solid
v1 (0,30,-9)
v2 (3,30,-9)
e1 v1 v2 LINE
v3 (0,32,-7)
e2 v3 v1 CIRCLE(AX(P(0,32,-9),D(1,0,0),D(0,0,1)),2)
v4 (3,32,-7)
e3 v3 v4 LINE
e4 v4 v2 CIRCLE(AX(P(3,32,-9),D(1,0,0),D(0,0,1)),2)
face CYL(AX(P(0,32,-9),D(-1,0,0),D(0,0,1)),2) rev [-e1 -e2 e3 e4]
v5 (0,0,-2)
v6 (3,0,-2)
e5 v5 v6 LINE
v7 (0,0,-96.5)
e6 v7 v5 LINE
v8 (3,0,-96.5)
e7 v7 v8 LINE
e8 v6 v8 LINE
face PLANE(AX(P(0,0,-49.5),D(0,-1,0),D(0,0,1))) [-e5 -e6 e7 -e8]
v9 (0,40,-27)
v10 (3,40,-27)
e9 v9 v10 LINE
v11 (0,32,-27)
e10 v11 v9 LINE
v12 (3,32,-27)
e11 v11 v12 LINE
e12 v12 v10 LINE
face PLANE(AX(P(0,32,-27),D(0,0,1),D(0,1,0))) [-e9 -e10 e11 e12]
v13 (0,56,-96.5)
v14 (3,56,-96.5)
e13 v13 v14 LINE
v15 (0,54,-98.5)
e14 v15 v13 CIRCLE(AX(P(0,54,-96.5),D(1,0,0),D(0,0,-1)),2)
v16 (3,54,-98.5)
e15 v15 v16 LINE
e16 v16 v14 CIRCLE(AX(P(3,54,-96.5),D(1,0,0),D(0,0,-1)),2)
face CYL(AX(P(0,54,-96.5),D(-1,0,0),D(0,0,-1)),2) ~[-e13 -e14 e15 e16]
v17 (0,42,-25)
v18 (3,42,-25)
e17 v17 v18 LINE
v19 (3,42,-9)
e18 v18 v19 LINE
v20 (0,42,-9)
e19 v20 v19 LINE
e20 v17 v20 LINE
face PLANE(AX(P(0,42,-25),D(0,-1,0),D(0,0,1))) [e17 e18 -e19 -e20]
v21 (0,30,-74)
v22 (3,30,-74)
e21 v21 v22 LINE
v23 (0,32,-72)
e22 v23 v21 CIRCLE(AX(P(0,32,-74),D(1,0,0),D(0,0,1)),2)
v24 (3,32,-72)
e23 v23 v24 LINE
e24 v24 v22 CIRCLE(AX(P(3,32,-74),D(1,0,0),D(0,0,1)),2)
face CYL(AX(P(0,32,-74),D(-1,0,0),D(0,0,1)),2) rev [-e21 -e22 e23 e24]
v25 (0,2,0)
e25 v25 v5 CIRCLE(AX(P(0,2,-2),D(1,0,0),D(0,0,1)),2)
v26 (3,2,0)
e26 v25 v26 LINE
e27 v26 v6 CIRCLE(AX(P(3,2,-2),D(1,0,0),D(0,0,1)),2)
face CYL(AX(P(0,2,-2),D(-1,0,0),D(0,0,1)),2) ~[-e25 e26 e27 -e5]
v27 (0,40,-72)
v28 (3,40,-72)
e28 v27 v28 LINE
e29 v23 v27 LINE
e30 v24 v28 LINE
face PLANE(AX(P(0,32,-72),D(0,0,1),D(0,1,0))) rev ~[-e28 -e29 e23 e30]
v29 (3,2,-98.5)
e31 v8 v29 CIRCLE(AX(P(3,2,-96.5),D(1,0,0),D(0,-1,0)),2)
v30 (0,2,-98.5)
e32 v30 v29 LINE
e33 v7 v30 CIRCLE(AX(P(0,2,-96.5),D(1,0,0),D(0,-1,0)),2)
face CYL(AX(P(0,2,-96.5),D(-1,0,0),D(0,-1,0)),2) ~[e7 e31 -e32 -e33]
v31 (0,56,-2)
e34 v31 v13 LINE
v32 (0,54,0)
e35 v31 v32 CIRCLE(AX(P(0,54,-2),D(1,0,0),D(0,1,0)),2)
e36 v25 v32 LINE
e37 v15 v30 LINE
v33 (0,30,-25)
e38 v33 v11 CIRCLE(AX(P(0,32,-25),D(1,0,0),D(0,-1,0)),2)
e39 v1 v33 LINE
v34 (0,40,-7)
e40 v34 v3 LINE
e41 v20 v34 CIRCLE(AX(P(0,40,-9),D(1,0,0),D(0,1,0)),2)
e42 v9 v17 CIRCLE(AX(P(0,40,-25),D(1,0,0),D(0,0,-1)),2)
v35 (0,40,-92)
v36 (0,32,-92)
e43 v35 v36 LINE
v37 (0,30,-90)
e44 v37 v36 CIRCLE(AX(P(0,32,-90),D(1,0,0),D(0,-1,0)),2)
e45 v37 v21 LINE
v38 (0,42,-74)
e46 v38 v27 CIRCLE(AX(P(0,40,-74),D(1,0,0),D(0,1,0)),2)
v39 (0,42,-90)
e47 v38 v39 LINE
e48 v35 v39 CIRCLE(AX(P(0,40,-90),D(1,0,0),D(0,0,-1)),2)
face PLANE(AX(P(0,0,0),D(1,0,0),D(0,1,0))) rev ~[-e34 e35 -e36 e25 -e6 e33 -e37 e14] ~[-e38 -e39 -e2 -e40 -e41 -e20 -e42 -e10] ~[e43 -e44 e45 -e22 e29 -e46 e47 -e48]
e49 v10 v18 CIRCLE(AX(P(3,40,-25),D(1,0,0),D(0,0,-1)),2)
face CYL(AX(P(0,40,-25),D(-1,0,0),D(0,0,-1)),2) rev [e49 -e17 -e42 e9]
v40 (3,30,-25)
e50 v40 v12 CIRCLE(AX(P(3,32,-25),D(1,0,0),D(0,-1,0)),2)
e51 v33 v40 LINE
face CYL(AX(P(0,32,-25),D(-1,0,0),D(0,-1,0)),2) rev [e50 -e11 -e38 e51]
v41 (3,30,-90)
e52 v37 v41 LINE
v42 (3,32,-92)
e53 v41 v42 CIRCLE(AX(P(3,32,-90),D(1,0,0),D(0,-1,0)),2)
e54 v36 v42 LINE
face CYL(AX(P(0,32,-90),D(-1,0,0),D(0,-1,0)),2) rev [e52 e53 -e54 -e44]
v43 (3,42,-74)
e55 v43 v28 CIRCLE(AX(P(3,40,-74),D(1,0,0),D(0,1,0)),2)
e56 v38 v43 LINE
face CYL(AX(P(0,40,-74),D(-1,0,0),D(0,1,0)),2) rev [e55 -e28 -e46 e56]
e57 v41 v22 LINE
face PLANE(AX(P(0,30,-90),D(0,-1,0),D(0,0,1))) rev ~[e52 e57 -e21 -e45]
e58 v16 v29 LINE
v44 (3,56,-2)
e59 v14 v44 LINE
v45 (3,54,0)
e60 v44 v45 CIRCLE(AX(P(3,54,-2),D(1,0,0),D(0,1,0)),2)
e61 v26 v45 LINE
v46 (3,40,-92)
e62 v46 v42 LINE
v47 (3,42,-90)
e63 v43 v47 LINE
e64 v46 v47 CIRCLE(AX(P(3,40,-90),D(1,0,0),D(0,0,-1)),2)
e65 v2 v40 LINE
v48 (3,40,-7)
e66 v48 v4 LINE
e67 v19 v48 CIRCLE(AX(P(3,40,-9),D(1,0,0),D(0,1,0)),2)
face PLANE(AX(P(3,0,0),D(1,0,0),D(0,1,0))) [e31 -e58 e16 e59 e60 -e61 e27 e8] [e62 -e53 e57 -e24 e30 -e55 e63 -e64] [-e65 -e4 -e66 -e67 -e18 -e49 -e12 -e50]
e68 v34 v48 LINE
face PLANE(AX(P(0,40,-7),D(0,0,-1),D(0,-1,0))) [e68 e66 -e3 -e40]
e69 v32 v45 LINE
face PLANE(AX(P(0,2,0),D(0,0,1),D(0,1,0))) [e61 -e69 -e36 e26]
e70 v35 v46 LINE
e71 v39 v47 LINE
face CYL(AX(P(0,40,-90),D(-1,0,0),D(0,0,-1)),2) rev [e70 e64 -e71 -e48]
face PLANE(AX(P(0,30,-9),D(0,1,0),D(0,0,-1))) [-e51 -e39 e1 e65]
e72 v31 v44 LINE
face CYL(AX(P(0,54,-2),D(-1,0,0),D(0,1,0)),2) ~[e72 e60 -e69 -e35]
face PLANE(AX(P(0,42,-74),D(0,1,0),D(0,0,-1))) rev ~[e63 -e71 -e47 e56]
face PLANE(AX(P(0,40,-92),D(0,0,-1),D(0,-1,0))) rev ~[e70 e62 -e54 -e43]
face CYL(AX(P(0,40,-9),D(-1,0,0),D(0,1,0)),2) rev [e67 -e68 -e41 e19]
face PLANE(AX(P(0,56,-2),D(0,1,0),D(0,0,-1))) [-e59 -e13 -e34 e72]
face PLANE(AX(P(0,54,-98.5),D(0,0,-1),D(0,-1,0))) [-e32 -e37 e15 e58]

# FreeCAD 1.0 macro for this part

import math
import FreeCAD as App
import Part
import Sketcher
Q = App.Units.Quantity

doc = App.newDocument("Part")
body = doc.addObject("PartDesign::Body", "Body")

sketch1 = body.newObject("Sketcher::SketchObject", "Sketch")
sketch1.AttachmentSupport = (doc.getObject("YZ_Plane"), [""])
sketch1.MapMode = "FlatFace"
sketch1.addGeometry([
    Part.LineSegment(App.Vector(54, 0, 0), App.Vector(2, 0, 0)),
    Part.ArcOfCircle(Part.Circle(App.Vector(2, -2, 0), App.Vector(0, 0, 1), 2), math.radians(90), math.radians(180)),
    Part.LineSegment(App.Vector(0, -2, 0), App.Vector(0, -96.5, 0)),
    Part.ArcOfCircle(Part.Circle(App.Vector(2, -96.5, 0), App.Vector(0, 0, 1), 2), math.radians(180), math.radians(270)),
    Part.LineSegment(App.Vector(2, -98.5, 0), App.Vector(54, -98.5, 0)),
    Part.ArcOfCircle(Part.Circle(App.Vector(54, -96.5, 0), App.Vector(0, 0, 1), 2), math.radians(-90), math.radians(0)),
    Part.LineSegment(App.Vector(56, -96.5, 0), App.Vector(56, -2, 0)),
    Part.ArcOfCircle(Part.Circle(App.Vector(54, -2, 0), App.Vector(0, 0, 1), 2), math.radians(0), math.radians(90)),
    Part.LineSegment(App.Vector(32, -7, 0), App.Vector(40, -7, 0)),
    Part.ArcOfCircle(Part.Circle(App.Vector(40, -9, 0), App.Vector(0, 0, 1), 2), math.radians(0), math.radians(90)),
    Part.LineSegment(App.Vector(42, -9, 0), App.Vector(42, -25, 0)),
    Part.ArcOfCircle(Part.Circle(App.Vector(40, -25, 0), App.Vector(0, 0, 1), 2), math.radians(-90), math.radians(0)),
    Part.LineSegment(App.Vector(40, -27, 0), App.Vector(32, -27, 0)),
    Part.ArcOfCircle(Part.Circle(App.Vector(32, -25, 0), App.Vector(0, 0, 1), 2), math.radians(180), math.radians(270)),
    Part.LineSegment(App.Vector(30, -25, 0), App.Vector(30, -9, 0)),
    Part.ArcOfCircle(Part.Circle(App.Vector(32, -9, 0), App.Vector(0, 0, 1), 2), math.radians(90), math.radians(180)),
    Part.LineSegment(App.Vector(40, -92, 0), App.Vector(32, -92, 0)),
    Part.ArcOfCircle(Part.Circle(App.Vector(32, -90, 0), App.Vector(0, 0, 1), 2), math.radians(180), math.radians(270)),
    Part.LineSegment(App.Vector(30, -90, 0), App.Vector(30, -74, 0)),
    Part.ArcOfCircle(Part.Circle(App.Vector(32, -74, 0), App.Vector(0, 0, 1), 2), math.radians(90), math.radians(180)),
    Part.LineSegment(App.Vector(32, -72, 0), App.Vector(40, -72, 0)),
    Part.ArcOfCircle(Part.Circle(App.Vector(40, -74, 0), App.Vector(0, 0, 1), 2), math.radians(0), math.radians(90)),
    Part.LineSegment(App.Vector(42, -74, 0), App.Vector(42, -90, 0)),
    Part.ArcOfCircle(Part.Circle(App.Vector(40, -90, 0), App.Vector(0, 0, 1), 2), math.radians(-90), math.radians(0)),
], False)
sketch1.addConstraint([
    Sketcher.Constraint("Tangent", 0, 2, 1, 1),
    Sketcher.Constraint("Tangent", 1, 2, 2, 1),
    Sketcher.Constraint("Tangent", 2, 2, 3, 1),
    Sketcher.Constraint("Tangent", 3, 2, 4, 1),
    Sketcher.Constraint("Tangent", 4, 2, 5, 1),
    Sketcher.Constraint("Tangent", 5, 2, 6, 1),
    Sketcher.Constraint("Tangent", 6, 2, 7, 1),
    Sketcher.Constraint("Tangent", 7, 2, 0, 1),
    Sketcher.Constraint("Tangent", 8, 2, 9, 2),
    Sketcher.Constraint("Tangent", 9, 1, 10, 1),
    Sketcher.Constraint("Tangent", 10, 2, 11, 2),
    Sketcher.Constraint("Tangent", 11, 1, 12, 1),
    Sketcher.Constraint("Tangent", 12, 2, 13, 2),
    Sketcher.Constraint("Tangent", 13, 1, 14, 1),
    Sketcher.Constraint("Tangent", 14, 2, 15, 2),
    Sketcher.Constraint("Tangent", 15, 1, 8, 1),
    Sketcher.Constraint("Tangent", 16, 2, 17, 2),
    Sketcher.Constraint("Tangent", 17, 1, 18, 1),
    Sketcher.Constraint("Tangent", 18, 2, 19, 2),
    Sketcher.Constraint("Tangent", 19, 1, 20, 1),
    Sketcher.Constraint("Tangent", 20, 2, 21, 2),
    Sketcher.Constraint("Tangent", 21, 1, 22, 1),
    Sketcher.Constraint("Tangent", 22, 2, 23, 2),
    Sketcher.Constraint("Tangent", 23, 1, 16, 1),
    Sketcher.Constraint("Horizontal", 0),
    Sketcher.Constraint("Vertical", 2),
    Sketcher.Constraint("Horizontal", 4),
    Sketcher.Constraint("Vertical", 6),
    Sketcher.Constraint("Horizontal", 8),
    Sketcher.Constraint("Vertical", 10),
    Sketcher.Constraint("Horizontal", 12),
    Sketcher.Constraint("Vertical", 14),
    Sketcher.Constraint("Horizontal", 16),
    Sketcher.Constraint("Vertical", 18),
    Sketcher.Constraint("Horizontal", 20),
    Sketcher.Constraint("Vertical", 22),
    Sketcher.Constraint("Equal", 1, 3),
    Sketcher.Constraint("Equal", 3, 5),
    Sketcher.Constraint("Equal", 5, 7),
    Sketcher.Constraint("Equal", 7, 9),
    Sketcher.Constraint("Equal", 9, 11),
    Sketcher.Constraint("Equal", 11, 13),
    Sketcher.Constraint("Equal", 13, 15),
    Sketcher.Constraint("Equal", 15, 17),
    Sketcher.Constraint("Equal", 17, 19),
    Sketcher.Constraint("Equal", 19, 21),
    Sketcher.Constraint("Equal", 21, 23),
    Sketcher.Constraint("PointOnObject", 0, 2, -1),
    Sketcher.Constraint("PointOnObject", 1, 2, -2),
    Sketcher.Constraint("Vertical", 15, 3, 17, 3),
    Sketcher.Constraint("Vertical", 11, 3, 21, 3),
    Sketcher.Constraint("Equal", 14, 18),
    Sketcher.Constraint("Radius", 1, Q("2 mm")),
    Sketcher.Constraint("DistanceX", -1, 1, 5, 2, Q("56 mm")),
    Sketcher.Constraint("DistanceY", 8, 2, -1, 1, Q("7 mm")),
    Sketcher.Constraint("DistanceX", -1, 1, 13, 1, Q("30 mm")),
    Sketcher.Constraint("DistanceX", 9, 1, 7, 3, Q("12 mm")),
    Sketcher.Constraint("DistanceY", 3, 2, -1, 1, Q("98.5 mm")),
    Sketcher.Constraint("DistanceY", 10, 2, 10, 1, Q("16 mm")),
    Sketcher.Constraint("DistanceY", 17, 3, -1, 1, Q("90 mm")),
])
pad1 = body.newObject("PartDesign::Pad", "Pad")
pad1.Profile = sketch1
pad1.Length = 3

doc.recompute()
